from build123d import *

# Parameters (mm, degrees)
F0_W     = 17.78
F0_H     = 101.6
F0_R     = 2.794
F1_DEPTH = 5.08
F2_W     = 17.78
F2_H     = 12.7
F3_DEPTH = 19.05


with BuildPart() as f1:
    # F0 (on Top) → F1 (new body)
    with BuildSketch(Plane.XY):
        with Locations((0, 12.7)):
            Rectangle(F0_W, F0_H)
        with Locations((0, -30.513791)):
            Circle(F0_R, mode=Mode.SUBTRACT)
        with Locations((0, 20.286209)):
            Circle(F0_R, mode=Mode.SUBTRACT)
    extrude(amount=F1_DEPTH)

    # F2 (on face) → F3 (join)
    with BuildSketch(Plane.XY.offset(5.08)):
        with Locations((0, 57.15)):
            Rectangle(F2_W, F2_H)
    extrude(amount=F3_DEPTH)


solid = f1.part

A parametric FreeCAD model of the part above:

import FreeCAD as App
import Part
import Sketcher
from FreeCAD import Vector
Q = App.Units.Quantity


def add_polygon(sketch, points):
    """Adds a closed chain of lines whose ends are joined by coincident constraints."""
    first, n = sketch.GeometryCount, len(points)
    for a, b in zip(points, points[1:] + points[:1]):
        sketch.addGeometry(Part.LineSegment(App.Vector(*a, 0), App.Vector(*b, 0)), False)
    for i in range(n):
        sketch.addConstraint(Sketcher.Constraint("Coincident", first + i, 2, first + (i + 1) % n, 1))

doc = App.newDocument("Part")
body = doc.addObject("PartDesign::Body", "Body")

sketch1 = body.newObject("Sketcher::SketchObject", "Sketch")
sketch1.AttachmentSupport = (doc.getObject("XY_Plane"), [""])
sketch1.MapMode = "FlatFace"
add_polygon(sketch1, [(-8.9, 63.5), (-8.9, -38.1), (8.9, -38.1), (8.9, 63.5)])
sketch1.addGeometry(Part.Circle(Vector(0, -30.5, 0), Vector(0, 0, 1), 2.8), False)
sketch1.addGeometry(Part.Circle(Vector(0, 20.3, 0), Vector(0, 0, 1), 2.8), False)
sketch1.addConstraint([
    Sketcher.Constraint("Vertical", 0),
    Sketcher.Constraint("Horizontal", 1),
    Sketcher.Constraint("Vertical", 2),
    Sketcher.Constraint("Horizontal", 3),
    Sketcher.Constraint("Equal", 4, 5),
    Sketcher.Constraint("PointOnObject", 4, 3, -2),
    Sketcher.Constraint("PointOnObject", 5, 3, -2),
    Sketcher.Constraint("Diameter", 4, Q("0.22 in")),
    Sketcher.Constraint("DistanceY", 0, 2, 0, 1, Q("4 in")),
    Sketcher.Constraint("DistanceX", 1, 1, 1, 2, Q("0.7 in")),
    Sketcher.Constraint("DistanceY", 4, 3, 5, 3, Q("2 in")),
    Sketcher.Constraint("DistanceY", 0, 2, -1, 1, Q("1.5 in")),
    Sketcher.Constraint("DistanceX", 0, 2, -1, 1, Q("0.35 in")),
    Sketcher.Constraint("DistanceY", 4, 3, -1, 1, Q("30.513791 mm")),
])
pad1 = body.newObject("PartDesign::Pad", "Pad")
pad1.Profile = sketch1
pad1.Length = Q("0.2 in")

sketch2 = body.newObject("Sketcher::SketchObject", "Sketch001")
sketch2.AttachmentSupport = (doc.getObject("XY_Plane"), [""])
sketch2.MapMode = "FlatFace"
sketch2.AttachmentOffset = App.Placement(Vector(0, 0, 0.2 * 25.4), App.Rotation())
add_polygon(sketch2, [(-9, 64), (-9, 51), (9, 51), (9, 64)])
sketch2.addConstraint([
    Sketcher.Constraint("Vertical", 0),
    Sketcher.Constraint("Horizontal", 1),
    Sketcher.Constraint("Vertical", 2),
    Sketcher.Constraint("Horizontal", 3),
    Sketcher.Constraint("DistanceX", 1, 1, 1, 2, Q("0.7 in")),
    Sketcher.Constraint("DistanceY", 0, 2, 0, 1, Q("0.5 in")),
    Sketcher.Constraint("DistanceY", -1, 1, 0, 2, Q("2 in")),
    Sketcher.Constraint("DistanceX", 0, 2, -1, 1, Q("0.35 in")),
])
pad2 = body.newObject("PartDesign::Pad", "Pad001")
pad2.Profile = sketch2
pad2.Length = Q("0.75 in")

doc.recompute()
